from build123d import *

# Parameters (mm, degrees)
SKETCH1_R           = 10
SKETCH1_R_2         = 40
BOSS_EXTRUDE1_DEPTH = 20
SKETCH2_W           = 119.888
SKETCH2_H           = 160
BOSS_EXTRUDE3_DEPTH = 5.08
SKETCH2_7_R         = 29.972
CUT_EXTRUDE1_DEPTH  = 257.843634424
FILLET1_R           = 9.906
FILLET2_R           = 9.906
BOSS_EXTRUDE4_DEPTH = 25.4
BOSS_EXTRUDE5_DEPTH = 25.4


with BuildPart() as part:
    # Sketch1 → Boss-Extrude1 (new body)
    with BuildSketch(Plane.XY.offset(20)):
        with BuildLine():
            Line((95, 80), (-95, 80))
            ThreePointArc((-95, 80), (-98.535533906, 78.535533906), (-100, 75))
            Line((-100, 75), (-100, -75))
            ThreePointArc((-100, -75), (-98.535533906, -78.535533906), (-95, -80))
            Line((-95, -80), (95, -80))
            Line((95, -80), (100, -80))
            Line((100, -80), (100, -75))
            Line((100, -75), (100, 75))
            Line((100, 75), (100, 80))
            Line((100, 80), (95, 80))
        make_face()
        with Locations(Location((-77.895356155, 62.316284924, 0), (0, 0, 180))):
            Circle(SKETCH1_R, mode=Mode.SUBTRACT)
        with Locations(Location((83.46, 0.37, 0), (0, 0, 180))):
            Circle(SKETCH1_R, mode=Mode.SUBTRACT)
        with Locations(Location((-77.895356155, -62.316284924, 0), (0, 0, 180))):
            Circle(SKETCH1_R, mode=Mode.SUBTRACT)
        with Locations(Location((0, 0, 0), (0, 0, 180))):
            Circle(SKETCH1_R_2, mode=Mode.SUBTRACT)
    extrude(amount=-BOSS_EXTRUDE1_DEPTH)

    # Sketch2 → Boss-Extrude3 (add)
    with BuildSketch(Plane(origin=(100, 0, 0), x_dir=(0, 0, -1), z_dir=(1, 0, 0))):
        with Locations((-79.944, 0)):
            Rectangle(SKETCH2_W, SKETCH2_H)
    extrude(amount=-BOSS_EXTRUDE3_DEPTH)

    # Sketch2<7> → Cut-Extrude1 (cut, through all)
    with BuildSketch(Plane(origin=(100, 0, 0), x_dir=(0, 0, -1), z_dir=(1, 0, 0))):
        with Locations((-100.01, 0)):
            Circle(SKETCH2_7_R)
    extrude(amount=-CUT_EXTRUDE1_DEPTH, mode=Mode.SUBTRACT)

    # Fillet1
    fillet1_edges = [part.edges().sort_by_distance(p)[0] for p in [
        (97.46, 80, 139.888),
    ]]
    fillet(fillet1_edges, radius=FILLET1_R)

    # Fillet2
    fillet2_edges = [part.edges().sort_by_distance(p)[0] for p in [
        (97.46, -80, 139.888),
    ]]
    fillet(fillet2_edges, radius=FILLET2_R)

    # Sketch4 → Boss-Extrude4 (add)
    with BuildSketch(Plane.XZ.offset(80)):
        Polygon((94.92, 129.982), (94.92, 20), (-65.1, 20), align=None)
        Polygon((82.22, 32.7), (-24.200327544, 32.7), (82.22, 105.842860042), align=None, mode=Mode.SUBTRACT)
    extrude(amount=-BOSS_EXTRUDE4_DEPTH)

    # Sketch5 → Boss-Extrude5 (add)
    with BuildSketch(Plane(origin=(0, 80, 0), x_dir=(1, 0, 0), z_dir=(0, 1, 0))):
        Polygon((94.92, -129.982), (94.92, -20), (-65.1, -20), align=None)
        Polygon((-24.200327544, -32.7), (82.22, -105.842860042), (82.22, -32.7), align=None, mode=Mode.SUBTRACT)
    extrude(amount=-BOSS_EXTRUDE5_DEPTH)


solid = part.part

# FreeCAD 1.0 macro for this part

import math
import FreeCAD as App
import Part
import Sketcher
from FreeCAD import Vector
Q = App.Units.Quantity


def edges_at(feature, points):
    """Names of the edges that pass closest to the given points."""
    edges = feature.Shape.Edges
    near = lambda p: min(range(len(edges)), key=lambda i: edges[i].distToShape(Part.Vertex(*p))[0])
    return sorted({f"Edge{near(p) + 1}" for p in points})


def add_polygon(sketch, points):
    """Adds a closed chain of lines whose ends are joined by coincident constraints."""
    first, n = sketch.GeometryCount, len(points)
    for a, b in zip(points, points[1:] + points[:1]):
        sketch.addGeometry(Part.LineSegment(App.Vector(*a, 0), App.Vector(*b, 0)), False)
    for i in range(n):
        sketch.addConstraint(Sketcher.Constraint("Coincident", first + i, 2, first + (i + 1) % n, 1))

doc = App.newDocument("Part")
params = doc.addObject("Spreadsheet::Sheet", "Params")
for row, (alias, value) in enumerate([
    ("pad1_length", "20 mm"),
    ("sketch2_height", "4.72 in"),
    ("pad2_length", "0.2 in"),
    ("sketch3_diameter", "2.36 in"),
    ("fillet_radius", "0.39 in"),
    ("fillet2_radius", "0.39 in"),
    ("sketch4_width", "6.3 in"),
    ("sketch4_height", "4.33 in"),
    ("pad3_length", "1 in"),
    ("sketch5_width", "6.3 in"),
    ("sketch5_height", "4.33 in"),
    ("pad4_length", "1 in"),
], start=1):
    params.set(f"A{row}", alias)
    params.set(f"B{row}", "=" + value)
    params.setAlias(f"B{row}", alias)

body = doc.addObject("PartDesign::Body", "Body")

sketch1 = body.newObject("Sketcher::SketchObject", "Sketch")
sketch1.AttachmentSupport = (doc.getObject("XY_Plane"), [""])
sketch1.MapMode = "FlatFace"
sketch1.AttachmentOffset = App.Placement(Vector(0, 0, 20), App.Rotation())
sketch1.addGeometry(Part.ArcOfCircle(Part.Circle(Vector(-95, 75, 0), Vector(0, 0, 1), 5), math.radians(90), math.radians(180)), False)
sketch1.addGeometry(Part.LineSegment(Vector(-100, 75, 0), Vector(-100, -75, 0)), False)
sketch1.addGeometry(Part.ArcOfCircle(Part.Circle(Vector(-95, -75, 0), Vector(0, 0, 1), 5), math.radians(180), math.radians(270)), False)
sketch1.addGeometry(Part.LineSegment(Vector(-95, -80, 0), Vector(100, -80, 0)), False)
sketch1.addGeometry(Part.LineSegment(Vector(100, -80, 0), Vector(100, 80, 0)), False)
sketch1.addGeometry(Part.LineSegment(Vector(100, 80, 0), Vector(-95, 80, 0)), False)
sketch1.addGeometry(Part.Circle(Vector(-78, -62, 0), Vector(0, 0, 1), 10), False)
sketch1.addGeometry(Part.Circle(Vector(0, 0, 0), Vector(0, 0, 1), 40), False)
sketch1.addGeometry(Part.Circle(Vector(-78, 62, 0), Vector(0, 0, 1), 10), False)
sketch1.addGeometry(Part.Circle(Vector(83, 0, 0), Vector(0, 0, 1), 10), False)
sketch1.addConstraint(Sketcher.Constraint("Tangent", 0, 2, 1, 1))
sketch1.addConstraint(Sketcher.Constraint("Tangent", 1, 2, 2, 1))
sketch1.addConstraint(Sketcher.Constraint("Tangent", 2, 2, 3, 1))
sketch1.addConstraint(Sketcher.Constraint("Coincident", 3, 2, 4, 1))
sketch1.addConstraint(Sketcher.Constraint("Coincident", 4, 2, 5, 1))
sketch1.addConstraint(Sketcher.Constraint("Tangent", 5, 2, 0, 1))
sketch1.addConstraint(Sketcher.Constraint("Vertical", 1))
sketch1.addConstraint(Sketcher.Constraint("Horizontal", 3))
sketch1.addConstraint(Sketcher.Constraint("Vertical", 4))
sketch1.addConstraint(Sketcher.Constraint("Horizontal", 5))
sketch1.addConstraint(Sketcher.Constraint("Coincident", 7, 3, -1, 1))
sketch1.addConstraint(Sketcher.Constraint("Equal", 0, 2))
sketch1.addConstraint(Sketcher.Constraint("Equal", 6, 8))
sketch1.addConstraint(Sketcher.Constraint("Equal", 8, 9))
sketch1.addConstraint(Sketcher.Constraint("Symmetric", 6, 3, 8, 3, -1))
sketch1.addConstraint(Sketcher.Constraint("Diameter", 6, Q("20 mm")))
sketch1.addConstraint(Sketcher.Constraint("Diameter", 7, Q("80 mm")))
sketch1.addConstraint(Sketcher.Constraint("Radius", 0, Q("5 mm")))
sketch1.addConstraint(Sketcher.Constraint("DistanceX", 3, 1, 3, 2, Q("195 mm")))
sketch1.addConstraint(Sketcher.Constraint("DistanceY", 1, 2, 1, 1, Q("150 mm")))
sketch1.addConstraint(Sketcher.Constraint("DistanceX", 0, 3, -1, 1, Q("95 mm")))
sketch1.addConstraint(Sketcher.Constraint("DistanceY", -1, 1, 0, 3, Q("75 mm")))
sketch1.addConstraint(Sketcher.Constraint("DistanceX", -1, 1, 9, 3, Q("83.46 mm")))
sketch1.addConstraint(Sketcher.Constraint("DistanceY", -1, 1, 9, 3, Q("0.37 mm")))
sketch1.addConstraint(Sketcher.Constraint("DistanceY", 6, 3, 8, 3, Q("124.63257 mm")))
sketch1.addConstraint(Sketcher.Constraint("DistanceX", 6, 3, -1, 1, Q("77.895356 mm")))
pad1 = body.newObject("PartDesign::Pad", "Pad")
pad1.Profile = sketch1
pad1.setExpression("Length", "Params.pad1_length")
pad1.Reversed = True

sketch2 = body.newObject("Sketcher::SketchObject", "Sketch001")
sketch2.AttachmentSupport = (doc.getObject("YZ_Plane"), [""])
sketch2.MapMode = "FlatFace"
sketch2.AttachmentOffset = App.Placement(Vector(0, 0, 100), App.Rotation())
add_polygon(sketch2, [(80, 140), (-80, 140), (-80, 20), (80, 20)])
sketch2.addConstraint(Sketcher.Constraint("Horizontal", 0))
sketch2.addConstraint(Sketcher.Constraint("Vertical", 1))
sketch2.addConstraint(Sketcher.Constraint("Horizontal", 2))
sketch2.addConstraint(Sketcher.Constraint("Vertical", 3))
sketch2.addConstraint(Sketcher.Constraint("DistanceY", 1, 2, 1, 1, Q("4.72 in")))
sketch2.addConstraint(Sketcher.Constraint("DistanceX", 0, 2, 0, 1, Q("160 mm")))
sketch2.addConstraint(Sketcher.Constraint("DistanceX", 0, 2, -1, 1, Q("80 mm")))
sketch2.addConstraint(Sketcher.Constraint("DistanceY", -1, 1, 0, 2, Q("139.888 mm")))
sketch2.setExpression("Constraints[8]", "Params.sketch2_height")
pad2 = body.newObject("PartDesign::Pad", "Pad001")
pad2.Profile = sketch2
pad2.setExpression("Length", "Params.pad2_length")
pad2.Reversed = True

sketch3 = body.newObject("Sketcher::SketchObject", "Sketch002")
sketch3.AttachmentSupport = (doc.getObject("YZ_Plane"), [""])
sketch3.MapMode = "FlatFace"
sketch3.AttachmentOffset = App.Placement(Vector(0, 0, 100), App.Rotation())
sketch3.addGeometry(Part.Circle(Vector(0, 100, 0), Vector(0, 0, 1), 30), False)
sketch3.addConstraint(Sketcher.Constraint("PointOnObject", 0, 3, -2))
sketch3.addConstraint(Sketcher.Constraint("Diameter", 0, Q("2.36 in")))
sketch3.addConstraint(Sketcher.Constraint("DistanceY", -1, 1, 0, 3, Q("100.01 mm")))
sketch3.setExpression("Constraints[1]", "Params.sketch3_diameter")
pocket1 = body.newObject("PartDesign::Pocket", "Pocket")
pocket1.Profile = sketch3
pocket1.Type = "ThroughAll"
doc.recompute()

fillet = body.newObject("PartDesign::Fillet", "Fillet")
fillet.Base = (pocket1, edges_at(pocket1, [(97.46, 80, 139.888)]))
fillet.setExpression("Radius", "Params.fillet_radius")
doc.recompute()

fillet2 = body.newObject("PartDesign::Fillet", "Fillet001")
fillet2.Base = (fillet, edges_at(fillet, [(97.46, -80, 139.888)]))
fillet2.setExpression("Radius", "Params.fillet2_radius")

sketch4 = body.newObject("Sketcher::SketchObject", "Sketch003")
sketch4.AttachmentSupport = (doc.getObject("XZ_Plane"), [""])
sketch4.MapMode = "FlatFace"
sketch4.AttachmentOffset = App.Placement(Vector(0, 0, 80), App.Rotation())
add_polygon(sketch4, [(95, 20), (95, 130), (-65, 20)])
add_polygon(sketch4, [(82, 33), (-24, 33), (82, 106)])
sketch4.addConstraint(Sketcher.Constraint("Vertical", 0))
sketch4.addConstraint(Sketcher.Constraint("Horizontal", 2))
sketch4.addConstraint(Sketcher.Constraint("Horizontal", 3))
sketch4.addConstraint(Sketcher.Constraint("Vertical", 5))
sketch4.addConstraint(Sketcher.Constraint("Parallel", 1, 4))
sketch4.addConstraint(Sketcher.Constraint("DistanceX", 2, 1, 2, 2, Q("6.3 in")))
sketch4.addConstraint(Sketcher.Constraint("DistanceY", 0, 1, 0, 2, Q("4.33 in")))
sketch4.addConstraint(Sketcher.Constraint("DistanceY", 1, 2, 3, 2, Q("0.5 in")))
sketch4.addConstraint(Sketcher.Constraint("DistanceX", 4, 2, 0, 2, Q("0.5 in")))
sketch4.addConstraint(Sketcher.Constraint("DistanceY", 5, 2, 5, 1, Q("73.14286 mm")))
sketch4.addConstraint(Sketcher.Constraint("DistanceX", -1, 1, 0, 2, Q("94.92 mm")))
sketch4.addConstraint(Sketcher.Constraint("DistanceY", -1, 1, 0, 2, Q("129.982 mm")))
sketch4.setExpression("Constraints[11]", "Params.sketch4_width")
sketch4.setExpression("Constraints[12]", "Params.sketch4_height")
pad3 = body.newObject("PartDesign::Pad", "Pad002")
pad3.Profile = sketch4
pad3.setExpression("Length", "Params.pad3_length")
pad3.Reversed = True

sketch5 = body.newObject("Sketcher::SketchObject", "Sketch004")
sketch5.AttachmentSupport = (doc.getObject("XZ_Plane"), [""])
sketch5.MapMode = "FlatFace"
sketch5.AttachmentOffset = App.Placement(Vector(0, 0, -80), App.Rotation())
add_polygon(sketch5, [(95, 130), (95, 20), (-65, 20)])
add_polygon(sketch5, [(82, 106), (-24, 33), (82, 33)])
sketch5.addConstraint(Sketcher.Constraint("Vertical", 0))
sketch5.addConstraint(Sketcher.Constraint("Horizontal", 1))
sketch5.addConstraint(Sketcher.Constraint("Horizontal", 4))
sketch5.addConstraint(Sketcher.Constraint("Vertical", 5))
sketch5.addConstraint(Sketcher.Constraint("Parallel", 2, 3))
sketch5.addConstraint(Sketcher.Constraint("DistanceX", 1, 2, 1, 1, Q("6.3 in")))
sketch5.addConstraint(Sketcher.Constraint("DistanceY", 0, 2, 0, 1, Q("4.33 in")))
sketch5.addConstraint(Sketcher.Constraint("DistanceY", 1, 2, 3, 2, Q("0.5 in")))
sketch5.addConstraint(Sketcher.Constraint("DistanceX", 4, 2, 0, 2, Q("0.5 in")))
sketch5.addConstraint(Sketcher.Constraint("DistanceY", 5, 1, 5, 2, Q("73.14286 mm")))
sketch5.addConstraint(Sketcher.Constraint("DistanceX", -1, 1, 0, 2, Q("94.92 mm")))
sketch5.addConstraint(Sketcher.Constraint("DistanceY", -1, 1, 0, 2, Q("20 mm")))
sketch5.setExpression("Constraints[11]", "Params.sketch5_width")
sketch5.setExpression("Constraints[12]", "Params.sketch5_height")
pad4 = body.newObject("PartDesign::Pad", "Pad003")
pad4.Profile = sketch5
pad4.setExpression("Length", "Params.pad4_length")

doc.recompute()
